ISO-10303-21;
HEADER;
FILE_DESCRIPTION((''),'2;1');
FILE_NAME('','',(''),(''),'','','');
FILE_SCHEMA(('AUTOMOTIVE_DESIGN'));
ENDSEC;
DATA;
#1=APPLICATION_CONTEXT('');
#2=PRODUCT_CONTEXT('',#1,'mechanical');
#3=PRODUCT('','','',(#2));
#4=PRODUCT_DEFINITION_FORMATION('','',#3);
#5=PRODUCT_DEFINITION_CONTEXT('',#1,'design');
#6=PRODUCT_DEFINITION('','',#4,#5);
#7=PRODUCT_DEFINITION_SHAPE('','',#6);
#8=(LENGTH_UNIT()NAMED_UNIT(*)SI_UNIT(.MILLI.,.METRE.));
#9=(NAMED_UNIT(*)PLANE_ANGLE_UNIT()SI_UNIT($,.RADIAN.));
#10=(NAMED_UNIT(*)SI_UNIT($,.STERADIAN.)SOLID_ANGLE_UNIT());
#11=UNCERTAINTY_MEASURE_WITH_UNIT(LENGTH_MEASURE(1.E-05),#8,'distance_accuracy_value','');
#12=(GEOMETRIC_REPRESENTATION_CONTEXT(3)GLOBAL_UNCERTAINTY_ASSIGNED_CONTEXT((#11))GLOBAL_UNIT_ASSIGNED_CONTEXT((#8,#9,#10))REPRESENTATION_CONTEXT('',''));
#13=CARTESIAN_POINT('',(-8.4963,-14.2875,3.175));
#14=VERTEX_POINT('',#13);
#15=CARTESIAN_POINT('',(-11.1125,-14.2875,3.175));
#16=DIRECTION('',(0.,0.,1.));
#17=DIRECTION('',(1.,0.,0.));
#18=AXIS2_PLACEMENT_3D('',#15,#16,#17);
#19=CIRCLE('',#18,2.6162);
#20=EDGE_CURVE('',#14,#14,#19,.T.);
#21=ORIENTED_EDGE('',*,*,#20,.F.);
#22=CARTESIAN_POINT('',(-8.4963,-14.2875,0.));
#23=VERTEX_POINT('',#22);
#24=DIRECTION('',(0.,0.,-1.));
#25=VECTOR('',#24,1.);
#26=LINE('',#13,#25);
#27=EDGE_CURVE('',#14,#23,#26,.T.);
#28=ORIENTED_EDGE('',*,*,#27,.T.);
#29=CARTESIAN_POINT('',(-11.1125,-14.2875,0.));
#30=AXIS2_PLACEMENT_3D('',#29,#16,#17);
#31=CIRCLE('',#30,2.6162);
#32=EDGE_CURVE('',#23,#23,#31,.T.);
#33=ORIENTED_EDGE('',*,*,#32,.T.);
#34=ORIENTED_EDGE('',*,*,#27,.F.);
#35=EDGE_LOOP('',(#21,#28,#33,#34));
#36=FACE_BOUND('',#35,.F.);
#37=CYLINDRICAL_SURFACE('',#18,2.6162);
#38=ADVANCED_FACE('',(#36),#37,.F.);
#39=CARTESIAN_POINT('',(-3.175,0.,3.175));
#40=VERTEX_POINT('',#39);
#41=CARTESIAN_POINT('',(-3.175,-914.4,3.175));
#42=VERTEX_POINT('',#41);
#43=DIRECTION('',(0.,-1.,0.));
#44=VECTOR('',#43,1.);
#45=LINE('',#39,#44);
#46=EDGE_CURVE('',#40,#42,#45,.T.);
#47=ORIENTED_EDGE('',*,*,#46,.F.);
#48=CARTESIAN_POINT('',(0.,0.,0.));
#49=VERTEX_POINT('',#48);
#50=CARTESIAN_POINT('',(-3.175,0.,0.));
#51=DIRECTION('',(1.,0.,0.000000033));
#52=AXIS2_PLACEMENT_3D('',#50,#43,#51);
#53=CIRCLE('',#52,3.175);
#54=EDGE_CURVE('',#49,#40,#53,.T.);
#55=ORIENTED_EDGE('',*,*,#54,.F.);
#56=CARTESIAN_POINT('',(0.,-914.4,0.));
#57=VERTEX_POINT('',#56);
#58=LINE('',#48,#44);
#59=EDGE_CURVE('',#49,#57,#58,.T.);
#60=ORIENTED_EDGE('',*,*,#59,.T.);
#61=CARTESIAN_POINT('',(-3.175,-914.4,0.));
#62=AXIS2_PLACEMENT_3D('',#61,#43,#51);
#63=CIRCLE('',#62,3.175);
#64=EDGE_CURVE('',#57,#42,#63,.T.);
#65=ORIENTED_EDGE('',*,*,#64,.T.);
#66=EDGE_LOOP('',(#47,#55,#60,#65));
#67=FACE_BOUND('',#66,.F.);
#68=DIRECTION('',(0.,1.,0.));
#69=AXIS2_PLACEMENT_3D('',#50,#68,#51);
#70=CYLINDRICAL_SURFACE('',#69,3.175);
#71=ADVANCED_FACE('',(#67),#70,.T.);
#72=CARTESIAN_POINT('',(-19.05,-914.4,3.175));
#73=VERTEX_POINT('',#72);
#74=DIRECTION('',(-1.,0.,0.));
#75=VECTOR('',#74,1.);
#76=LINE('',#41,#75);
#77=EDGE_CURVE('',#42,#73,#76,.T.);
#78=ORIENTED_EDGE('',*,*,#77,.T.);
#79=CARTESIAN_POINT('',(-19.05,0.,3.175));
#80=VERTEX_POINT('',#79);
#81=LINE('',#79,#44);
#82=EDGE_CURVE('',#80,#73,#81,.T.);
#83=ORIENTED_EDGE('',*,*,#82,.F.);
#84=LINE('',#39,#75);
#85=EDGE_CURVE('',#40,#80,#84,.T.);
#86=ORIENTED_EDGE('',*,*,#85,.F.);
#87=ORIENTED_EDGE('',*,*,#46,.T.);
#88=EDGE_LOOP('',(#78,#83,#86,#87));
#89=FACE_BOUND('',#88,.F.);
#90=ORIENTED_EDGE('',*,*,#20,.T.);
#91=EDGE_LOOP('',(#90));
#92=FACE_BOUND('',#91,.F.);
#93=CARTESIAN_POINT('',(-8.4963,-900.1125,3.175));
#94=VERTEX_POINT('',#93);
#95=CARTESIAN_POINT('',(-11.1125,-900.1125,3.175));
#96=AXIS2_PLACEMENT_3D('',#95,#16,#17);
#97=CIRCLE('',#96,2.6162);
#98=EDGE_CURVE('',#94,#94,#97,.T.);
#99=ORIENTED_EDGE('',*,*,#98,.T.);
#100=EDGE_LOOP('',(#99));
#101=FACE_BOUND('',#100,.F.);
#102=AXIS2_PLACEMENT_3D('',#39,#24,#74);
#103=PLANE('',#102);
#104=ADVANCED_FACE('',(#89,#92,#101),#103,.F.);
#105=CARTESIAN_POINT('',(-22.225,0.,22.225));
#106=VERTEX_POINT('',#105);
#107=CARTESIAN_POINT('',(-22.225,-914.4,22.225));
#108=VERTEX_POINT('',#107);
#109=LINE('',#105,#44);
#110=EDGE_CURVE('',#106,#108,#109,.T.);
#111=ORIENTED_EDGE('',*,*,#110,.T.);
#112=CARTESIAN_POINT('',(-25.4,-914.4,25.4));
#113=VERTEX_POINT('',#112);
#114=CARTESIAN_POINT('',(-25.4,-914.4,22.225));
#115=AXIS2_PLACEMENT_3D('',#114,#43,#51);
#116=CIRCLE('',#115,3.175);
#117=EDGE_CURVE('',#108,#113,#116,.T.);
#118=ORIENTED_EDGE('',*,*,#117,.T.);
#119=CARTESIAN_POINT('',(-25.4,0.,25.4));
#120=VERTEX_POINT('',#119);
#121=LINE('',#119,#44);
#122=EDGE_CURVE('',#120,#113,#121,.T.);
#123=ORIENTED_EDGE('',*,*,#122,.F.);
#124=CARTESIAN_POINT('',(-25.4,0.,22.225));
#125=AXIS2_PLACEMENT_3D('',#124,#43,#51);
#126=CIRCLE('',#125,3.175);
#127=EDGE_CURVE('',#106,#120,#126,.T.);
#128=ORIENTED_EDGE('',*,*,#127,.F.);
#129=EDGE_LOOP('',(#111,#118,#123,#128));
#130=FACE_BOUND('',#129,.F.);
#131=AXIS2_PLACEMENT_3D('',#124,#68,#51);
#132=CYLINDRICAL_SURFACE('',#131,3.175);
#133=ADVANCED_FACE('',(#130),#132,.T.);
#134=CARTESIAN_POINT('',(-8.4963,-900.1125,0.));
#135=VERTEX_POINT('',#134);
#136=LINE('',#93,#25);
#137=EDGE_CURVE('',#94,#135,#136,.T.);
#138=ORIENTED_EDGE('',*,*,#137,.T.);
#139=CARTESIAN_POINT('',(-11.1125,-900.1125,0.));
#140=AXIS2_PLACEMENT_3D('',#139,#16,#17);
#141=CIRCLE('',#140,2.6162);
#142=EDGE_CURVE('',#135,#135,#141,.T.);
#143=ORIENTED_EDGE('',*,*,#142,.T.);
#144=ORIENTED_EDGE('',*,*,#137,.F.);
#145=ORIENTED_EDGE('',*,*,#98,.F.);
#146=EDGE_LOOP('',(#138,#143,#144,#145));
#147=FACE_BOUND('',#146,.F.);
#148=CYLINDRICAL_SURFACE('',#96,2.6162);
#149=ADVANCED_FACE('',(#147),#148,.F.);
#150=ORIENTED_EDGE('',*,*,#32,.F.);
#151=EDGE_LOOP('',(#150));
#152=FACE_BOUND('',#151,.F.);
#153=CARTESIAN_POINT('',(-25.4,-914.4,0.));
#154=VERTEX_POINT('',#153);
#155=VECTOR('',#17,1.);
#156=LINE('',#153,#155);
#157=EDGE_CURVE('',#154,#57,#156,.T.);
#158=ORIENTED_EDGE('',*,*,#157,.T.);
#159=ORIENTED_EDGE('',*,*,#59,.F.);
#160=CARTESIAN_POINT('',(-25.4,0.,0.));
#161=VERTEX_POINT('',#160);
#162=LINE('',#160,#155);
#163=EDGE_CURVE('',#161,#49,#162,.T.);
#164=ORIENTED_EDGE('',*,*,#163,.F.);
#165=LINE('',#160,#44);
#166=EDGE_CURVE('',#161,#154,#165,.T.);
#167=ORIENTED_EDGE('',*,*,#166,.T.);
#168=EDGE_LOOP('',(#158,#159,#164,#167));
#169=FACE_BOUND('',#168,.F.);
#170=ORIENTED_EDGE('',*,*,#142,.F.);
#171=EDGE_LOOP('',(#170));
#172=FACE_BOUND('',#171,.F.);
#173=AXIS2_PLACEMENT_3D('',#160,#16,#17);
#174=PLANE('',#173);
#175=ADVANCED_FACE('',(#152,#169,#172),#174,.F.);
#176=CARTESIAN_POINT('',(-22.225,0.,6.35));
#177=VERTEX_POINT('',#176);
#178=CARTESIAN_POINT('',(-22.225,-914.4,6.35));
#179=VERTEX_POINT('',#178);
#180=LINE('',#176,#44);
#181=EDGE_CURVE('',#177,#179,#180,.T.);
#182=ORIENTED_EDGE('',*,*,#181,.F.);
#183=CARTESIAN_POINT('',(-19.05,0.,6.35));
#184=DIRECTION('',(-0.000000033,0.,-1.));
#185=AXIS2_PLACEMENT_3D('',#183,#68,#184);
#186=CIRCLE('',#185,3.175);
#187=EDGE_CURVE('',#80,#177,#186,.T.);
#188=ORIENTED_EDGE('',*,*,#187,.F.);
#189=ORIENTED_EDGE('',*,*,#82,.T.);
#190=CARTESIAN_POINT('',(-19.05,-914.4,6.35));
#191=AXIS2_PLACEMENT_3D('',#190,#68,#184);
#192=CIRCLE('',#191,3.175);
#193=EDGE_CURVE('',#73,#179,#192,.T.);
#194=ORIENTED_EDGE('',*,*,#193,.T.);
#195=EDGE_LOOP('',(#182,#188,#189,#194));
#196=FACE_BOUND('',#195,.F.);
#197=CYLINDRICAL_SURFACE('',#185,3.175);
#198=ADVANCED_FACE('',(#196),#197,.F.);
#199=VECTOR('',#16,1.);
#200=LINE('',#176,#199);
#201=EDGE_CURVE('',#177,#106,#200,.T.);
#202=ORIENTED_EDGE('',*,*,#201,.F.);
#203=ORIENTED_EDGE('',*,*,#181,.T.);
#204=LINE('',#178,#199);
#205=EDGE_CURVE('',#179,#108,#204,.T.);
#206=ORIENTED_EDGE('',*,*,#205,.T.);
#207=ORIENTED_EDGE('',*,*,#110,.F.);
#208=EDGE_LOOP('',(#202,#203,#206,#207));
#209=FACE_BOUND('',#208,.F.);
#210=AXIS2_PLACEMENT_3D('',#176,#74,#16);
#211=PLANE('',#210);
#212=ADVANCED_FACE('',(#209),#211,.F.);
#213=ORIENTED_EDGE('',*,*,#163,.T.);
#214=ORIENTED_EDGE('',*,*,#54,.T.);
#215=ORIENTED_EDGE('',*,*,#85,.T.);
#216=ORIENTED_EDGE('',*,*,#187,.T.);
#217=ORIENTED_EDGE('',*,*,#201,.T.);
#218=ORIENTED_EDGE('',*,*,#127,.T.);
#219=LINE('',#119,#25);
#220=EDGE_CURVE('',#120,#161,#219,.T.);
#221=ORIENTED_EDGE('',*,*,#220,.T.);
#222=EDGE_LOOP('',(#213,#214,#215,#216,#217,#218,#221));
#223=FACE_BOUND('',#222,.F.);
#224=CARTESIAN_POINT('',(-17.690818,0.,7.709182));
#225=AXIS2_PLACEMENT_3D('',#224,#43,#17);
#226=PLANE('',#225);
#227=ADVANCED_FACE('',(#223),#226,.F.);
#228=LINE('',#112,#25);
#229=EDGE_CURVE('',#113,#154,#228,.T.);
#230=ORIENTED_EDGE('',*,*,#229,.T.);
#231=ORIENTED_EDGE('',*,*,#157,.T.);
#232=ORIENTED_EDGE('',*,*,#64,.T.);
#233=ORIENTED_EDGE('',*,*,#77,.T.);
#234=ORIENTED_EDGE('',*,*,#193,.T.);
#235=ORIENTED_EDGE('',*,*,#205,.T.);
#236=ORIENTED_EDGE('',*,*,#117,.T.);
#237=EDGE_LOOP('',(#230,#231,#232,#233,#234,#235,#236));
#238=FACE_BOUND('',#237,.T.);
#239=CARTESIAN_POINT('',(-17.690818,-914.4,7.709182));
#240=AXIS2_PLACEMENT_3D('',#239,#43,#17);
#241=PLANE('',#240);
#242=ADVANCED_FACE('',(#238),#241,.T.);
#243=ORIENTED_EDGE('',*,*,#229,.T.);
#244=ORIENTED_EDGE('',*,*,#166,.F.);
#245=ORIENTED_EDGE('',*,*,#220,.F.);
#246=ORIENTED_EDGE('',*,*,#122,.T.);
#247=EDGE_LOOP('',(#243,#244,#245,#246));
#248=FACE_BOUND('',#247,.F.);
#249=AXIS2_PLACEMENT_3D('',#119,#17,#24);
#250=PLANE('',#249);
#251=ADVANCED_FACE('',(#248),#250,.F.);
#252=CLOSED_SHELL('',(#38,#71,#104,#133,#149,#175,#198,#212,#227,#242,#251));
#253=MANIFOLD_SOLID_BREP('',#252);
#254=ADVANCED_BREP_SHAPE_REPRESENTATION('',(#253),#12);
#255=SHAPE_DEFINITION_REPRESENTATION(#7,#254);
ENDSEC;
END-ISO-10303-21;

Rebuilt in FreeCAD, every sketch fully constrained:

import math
import FreeCAD as App
import Part
import Sketcher
from FreeCAD import Vector
Q = App.Units.Quantity

doc = App.newDocument("Part")
body = doc.addObject("PartDesign::Body", "Body")

# Sketch on XZ plane
sketch1 = body.newObject("Sketcher::SketchObject", "Sketch")
sketch1.AttachmentSupport = (doc.getObject("XZ_Plane"), [""])
sketch1.MapMode = "FlatFace"
sketch1.addGeometry([
    Part.LineSegment(Vector(-25.4, 0, 0), Vector(0, 0, 0)),  # 0
    Part.ArcOfCircle(Part.Circle(Vector(-3.2, 0, 0), Vector(0, 0, 1), 3.2), math.radians(0), math.radians(90)),  # 1
    Part.LineSegment(Vector(-3.2, 3.2, 0), Vector(-19.1, 3.2, 0)),  # 2
    Part.ArcOfCircle(Part.Circle(Vector(-19, 6.4, 0), Vector(0, 0, 1), 3.2), math.radians(-180), math.radians(-90)),  # 3
    Part.LineSegment(Vector(-22.2, 6.3, 0), Vector(-22.2, 22.2, 0)),  # 4
    Part.ArcOfCircle(Part.Circle(Vector(-25.4, 22.2, 0), Vector(0, 0, 1), 3.2), math.radians(0), math.radians(90)),  # 5
    Part.LineSegment(Vector(-25.4, 25.4, 0), Vector(-25.4, 0, 0)),  # 6
], False)
sketch1.addConstraint([
    Sketcher.Constraint("Coincident", 0, 2, 1, 1),
    Sketcher.Constraint("Tangent", 1, 2, 2, 1),
    Sketcher.Constraint("Tangent", 2, 2, 3, 2),
    Sketcher.Constraint("Tangent", 3, 1, 4, 1),
    Sketcher.Constraint("Tangent", 4, 2, 5, 1),
    Sketcher.Constraint("Coincident", 5, 2, 6, 1),
    Sketcher.Constraint("Coincident", 6, 2, 0, 1),
    Sketcher.Constraint("Horizontal", 0),
    Sketcher.Constraint("Horizontal", 2),
    Sketcher.Constraint("Vertical", 4),
    Sketcher.Constraint("Vertical", 6),
    Sketcher.Constraint("Coincident", 0, 2, -1, 1),
    Sketcher.Constraint("Equal", 1, 3),
    Sketcher.Constraint("Equal", 3, 5),
    Sketcher.Constraint("PointOnObject", 1, 3, -1),
    Sketcher.Constraint("Equal", 2, 4),
    Sketcher.Constraint("Equal", 0, 6),
    Sketcher.Constraint("DistanceX", 0, 1, 0, 2, Q("1 in")),
    Sketcher.Constraint("Radius", 1, Q("0.125 in")),
])
pad1 = body.newObject("PartDesign::Pad", "Pad")
pad1.Profile = sketch1
pad1.Length = Q("36 in")

# Sketch on XY plane
sketch2 = body.newObject("Sketcher::SketchObject", "Sketch001")
sketch2.AttachmentSupport = (doc.getObject("XY_Plane"), [""])
sketch2.MapMode = "FlatFace"
sketch2.AttachmentOffset = App.Placement(Vector(0, 0, 0.125 * 25.4), App.Rotation())
sketch2.addGeometry([
    Part.Circle(Vector(-11.1, -900.1, 0), Vector(0, 0, 1), 2.6),
    Part.Circle(Vector(-11.1, -14.3, 0), Vector(0, 0, 1), 2.6),
], False)
sketch2.addConstraint([
    Sketcher.Constraint("Equal", 0, 1),
    Sketcher.Constraint("Vertical", 0, 3, 1, 3),
    Sketcher.Constraint("Diameter", 0, Q("0.206 in")),
    Sketcher.Constraint("DistanceX", 0, 3, -1, 1, Q("0.4375 in")),
    Sketcher.Constraint("DistanceY", 0, 3, -1, 1, Q("35.4375 in")),
    Sketcher.Constraint("DistanceY", 1, 3, -1, 1, Q("0.5625 in")),
])
pocket1 = body.newObject("PartDesign::Pocket", "Pocket")
pocket1.Profile = sketch2
pocket1.Type = "ThroughAll"

doc.recompute()
